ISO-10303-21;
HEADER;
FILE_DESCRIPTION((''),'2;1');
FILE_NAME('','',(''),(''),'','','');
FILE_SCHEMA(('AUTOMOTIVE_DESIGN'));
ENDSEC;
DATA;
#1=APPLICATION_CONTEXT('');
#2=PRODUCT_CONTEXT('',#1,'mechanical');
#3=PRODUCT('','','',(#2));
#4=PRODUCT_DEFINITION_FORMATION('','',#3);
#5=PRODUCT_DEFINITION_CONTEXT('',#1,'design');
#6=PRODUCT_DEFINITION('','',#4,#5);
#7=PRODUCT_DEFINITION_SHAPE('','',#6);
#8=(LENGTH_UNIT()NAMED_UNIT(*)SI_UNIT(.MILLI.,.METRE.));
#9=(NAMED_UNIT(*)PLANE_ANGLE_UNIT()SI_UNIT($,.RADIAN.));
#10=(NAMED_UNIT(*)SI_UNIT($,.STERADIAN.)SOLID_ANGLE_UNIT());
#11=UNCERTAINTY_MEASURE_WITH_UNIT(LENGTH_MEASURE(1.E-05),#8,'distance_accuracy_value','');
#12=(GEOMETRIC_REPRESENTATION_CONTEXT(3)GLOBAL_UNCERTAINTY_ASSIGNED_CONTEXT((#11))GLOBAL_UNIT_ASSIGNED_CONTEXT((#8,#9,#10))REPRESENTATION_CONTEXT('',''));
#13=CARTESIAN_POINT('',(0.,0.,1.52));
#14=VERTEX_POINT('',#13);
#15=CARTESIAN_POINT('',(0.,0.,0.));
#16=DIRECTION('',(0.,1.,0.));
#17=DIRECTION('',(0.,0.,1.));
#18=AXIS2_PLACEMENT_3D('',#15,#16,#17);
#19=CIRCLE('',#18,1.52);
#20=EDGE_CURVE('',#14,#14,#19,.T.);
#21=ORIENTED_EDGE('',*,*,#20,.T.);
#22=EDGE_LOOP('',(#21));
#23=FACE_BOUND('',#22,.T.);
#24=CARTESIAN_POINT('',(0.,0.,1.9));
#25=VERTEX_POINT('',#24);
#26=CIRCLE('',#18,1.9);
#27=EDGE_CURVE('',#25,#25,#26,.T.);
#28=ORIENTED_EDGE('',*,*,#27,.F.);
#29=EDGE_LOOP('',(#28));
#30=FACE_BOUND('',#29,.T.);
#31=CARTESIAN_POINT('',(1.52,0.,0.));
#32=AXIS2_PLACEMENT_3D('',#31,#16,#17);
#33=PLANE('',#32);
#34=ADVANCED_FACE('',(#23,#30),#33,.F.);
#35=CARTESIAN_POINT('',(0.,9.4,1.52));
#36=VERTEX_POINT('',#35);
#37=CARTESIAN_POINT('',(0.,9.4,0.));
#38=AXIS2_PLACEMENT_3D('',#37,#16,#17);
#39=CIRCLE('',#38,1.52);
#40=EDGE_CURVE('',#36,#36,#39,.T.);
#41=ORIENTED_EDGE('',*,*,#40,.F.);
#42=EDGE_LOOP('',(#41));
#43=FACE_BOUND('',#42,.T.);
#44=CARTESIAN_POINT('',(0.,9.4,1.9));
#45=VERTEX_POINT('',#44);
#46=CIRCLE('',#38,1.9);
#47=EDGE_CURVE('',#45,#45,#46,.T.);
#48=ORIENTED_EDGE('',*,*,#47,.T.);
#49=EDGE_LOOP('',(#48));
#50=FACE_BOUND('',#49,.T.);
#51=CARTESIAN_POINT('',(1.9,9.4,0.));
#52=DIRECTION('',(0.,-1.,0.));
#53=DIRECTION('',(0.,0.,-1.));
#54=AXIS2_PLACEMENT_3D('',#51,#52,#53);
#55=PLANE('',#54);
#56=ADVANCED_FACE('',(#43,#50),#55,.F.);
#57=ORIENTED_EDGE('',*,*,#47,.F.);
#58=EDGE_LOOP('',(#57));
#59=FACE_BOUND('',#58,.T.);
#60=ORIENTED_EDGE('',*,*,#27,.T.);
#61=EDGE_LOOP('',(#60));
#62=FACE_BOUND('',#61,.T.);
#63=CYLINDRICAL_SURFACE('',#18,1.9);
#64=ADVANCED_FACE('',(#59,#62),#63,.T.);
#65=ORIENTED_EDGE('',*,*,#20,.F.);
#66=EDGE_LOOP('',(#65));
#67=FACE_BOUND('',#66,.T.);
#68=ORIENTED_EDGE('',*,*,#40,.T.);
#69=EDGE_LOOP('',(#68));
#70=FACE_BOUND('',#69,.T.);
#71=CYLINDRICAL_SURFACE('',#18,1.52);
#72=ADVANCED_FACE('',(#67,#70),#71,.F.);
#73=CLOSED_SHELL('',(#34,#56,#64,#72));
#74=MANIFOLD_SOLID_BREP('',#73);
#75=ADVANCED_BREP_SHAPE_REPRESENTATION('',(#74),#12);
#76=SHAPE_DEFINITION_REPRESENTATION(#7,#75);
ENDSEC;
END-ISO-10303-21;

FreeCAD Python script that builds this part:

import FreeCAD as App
import Part
import Sketcher
from FreeCAD import Vector
Q = App.Units.Quantity


def add_polygon(sketch, points):
    """Adds a closed chain of lines whose ends are joined by coincident constraints."""
    first, n = sketch.GeometryCount, len(points)
    for a, b in zip(points, points[1:] + points[:1]):
        sketch.addGeometry(Part.LineSegment(App.Vector(*a, 0), App.Vector(*b, 0)), False)
    for i in range(n):
        sketch.addConstraint(Sketcher.Constraint("Coincident", first + i, 2, first + (i + 1) % n, 1))

doc = App.newDocument("Part")
body = doc.addObject("PartDesign::Body", "Body")

# Sketch on XY plane
sketch1 = doc.addObject("Sketcher::SketchObject", "Sketch")
body.addObject(sketch1)
sketch1.AttachmentSupport = (doc.XY_Plane, [""])
sketch1.MapMode = "FlatFace"
add_polygon(sketch1, [(1.52, 9.4), (1.52, 0), (1.9, 0), (1.9, 9.4)])  # lines 0-3
sketch1.addConstraint(Sketcher.Constraint("Vertical", 0))
sketch1.addConstraint(Sketcher.Constraint("Horizontal", 1))
sketch1.addConstraint(Sketcher.Constraint("Vertical", 2))
sketch1.addConstraint(Sketcher.Constraint("Horizontal", 3))
sketch1.addConstraint(Sketcher.Constraint("PointOnObject", 0, 2, -1))
sketch1.addConstraint(Sketcher.Constraint("DistanceY", 0, 2, 0, 1, Q("9.4 mm")))
sketch1.addConstraint(Sketcher.Constraint("DistanceX", 1, 1, 1, 2, Q("0.38 mm")))
sketch1.addConstraint(Sketcher.Constraint("DistanceX", -1, 1, 1, 2, Q("1.9 mm")))
revolution = doc.addObject("PartDesign::Revolution", "Revolution")
body.addObject(revolution)
revolution.Profile = sketch1
revolution.ReferenceAxis = (sketch1, ["V_Axis"])
revolution.Angle = 360

doc.recompute()
